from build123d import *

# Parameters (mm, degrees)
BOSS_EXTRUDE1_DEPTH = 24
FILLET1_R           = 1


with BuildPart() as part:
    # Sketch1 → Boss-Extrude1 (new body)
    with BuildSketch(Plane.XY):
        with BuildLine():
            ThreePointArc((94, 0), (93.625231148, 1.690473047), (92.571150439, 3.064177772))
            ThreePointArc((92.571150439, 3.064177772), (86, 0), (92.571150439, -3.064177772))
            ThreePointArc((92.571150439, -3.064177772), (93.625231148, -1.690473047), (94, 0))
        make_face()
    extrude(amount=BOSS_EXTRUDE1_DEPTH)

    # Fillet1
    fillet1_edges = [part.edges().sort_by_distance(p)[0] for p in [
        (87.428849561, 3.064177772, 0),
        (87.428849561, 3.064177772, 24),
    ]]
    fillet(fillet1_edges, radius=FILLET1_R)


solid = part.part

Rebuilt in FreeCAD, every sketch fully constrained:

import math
import FreeCAD as App
import Part
import Sketcher
Q = App.Units.Quantity


def edges_at(feature, points):
    """Names of the edges that pass closest to the given points."""
    edges = feature.Shape.Edges
    near = lambda p: min(range(len(edges)), key=lambda i: edges[i].distToShape(Part.Vertex(*p))[0])
    return sorted({f"Edge{near(p) + 1}" for p in points})

doc = App.newDocument("Part")
params = doc.addObject("Spreadsheet::Sheet", "Params")
for row, (alias, value) in enumerate([
    ("sketch1_radius", "4 mm"),
    ("pad1_length", "24 mm"),
    ("fillet_radius", "1 mm"),
], start=1):
    params.set(f"A{row}", alias)
    params.set(f"B{row}", "=" + value)
    params.setAlias(f"B{row}", alias)

body = doc.addObject("PartDesign::Body", "Body")

sketch1 = body.newObject("Sketcher::SketchObject", "Sketch")
sketch1.AttachmentSupport = (doc.getObject("XY_Plane"), [""])
sketch1.MapMode = "FlatFace"
sketch1.addGeometry(Part.ArcOfCircle(Part.Circle(App.Vector(90, 0, 0), App.Vector(0, 0, 1), 4), math.radians(0), math.radians(50)), False)
sketch1.addGeometry(Part.ArcOfCircle(Part.Circle(App.Vector(90, 0, 0), App.Vector(0, 0, 1), 4), math.radians(50), math.radians(310)), False)
sketch1.addGeometry(Part.ArcOfCircle(Part.Circle(App.Vector(90, 0, 0), App.Vector(0, 0, 1), 4), math.radians(-50), math.radians(0)), False)
sketch1.addConstraint(Sketcher.Constraint("Tangent", 0, 2, 1, 1))
sketch1.addConstraint(Sketcher.Constraint("Tangent", 1, 2, 2, 1))
sketch1.addConstraint(Sketcher.Constraint("Tangent", 2, 2, 0, 1))
sketch1.addConstraint(Sketcher.Constraint("Symmetric", 0, 2, 1, 2, -1))
sketch1.addConstraint(Sketcher.Constraint("PointOnObject", 2, 2, -1))
sketch1.addConstraint(Sketcher.Constraint("Radius", 0, Q("4 mm")))
sketch1.addConstraint(Sketcher.Constraint("DistanceX", -1, 1, 0, 3, Q("90 mm")))
sketch1.addConstraint(Sketcher.Constraint("DistanceX", -1, 1, 0, 2, Q("92.57115 mm")))
sketch1.setExpression("Constraints[5]", "Params.sketch1_radius")
pad1 = body.newObject("PartDesign::Pad", "Pad")
pad1.Profile = sketch1
pad1.setExpression("Length", "Params.pad1_length")
doc.recompute()

fillet = body.newObject("PartDesign::Fillet", "Fillet")
fillet.Base = (pad1, edges_at(pad1, [(86, 0, 0), (86, 0, 24)]))
fillet.setExpression("Radius", "Params.fillet_radius")

doc.recompute()
